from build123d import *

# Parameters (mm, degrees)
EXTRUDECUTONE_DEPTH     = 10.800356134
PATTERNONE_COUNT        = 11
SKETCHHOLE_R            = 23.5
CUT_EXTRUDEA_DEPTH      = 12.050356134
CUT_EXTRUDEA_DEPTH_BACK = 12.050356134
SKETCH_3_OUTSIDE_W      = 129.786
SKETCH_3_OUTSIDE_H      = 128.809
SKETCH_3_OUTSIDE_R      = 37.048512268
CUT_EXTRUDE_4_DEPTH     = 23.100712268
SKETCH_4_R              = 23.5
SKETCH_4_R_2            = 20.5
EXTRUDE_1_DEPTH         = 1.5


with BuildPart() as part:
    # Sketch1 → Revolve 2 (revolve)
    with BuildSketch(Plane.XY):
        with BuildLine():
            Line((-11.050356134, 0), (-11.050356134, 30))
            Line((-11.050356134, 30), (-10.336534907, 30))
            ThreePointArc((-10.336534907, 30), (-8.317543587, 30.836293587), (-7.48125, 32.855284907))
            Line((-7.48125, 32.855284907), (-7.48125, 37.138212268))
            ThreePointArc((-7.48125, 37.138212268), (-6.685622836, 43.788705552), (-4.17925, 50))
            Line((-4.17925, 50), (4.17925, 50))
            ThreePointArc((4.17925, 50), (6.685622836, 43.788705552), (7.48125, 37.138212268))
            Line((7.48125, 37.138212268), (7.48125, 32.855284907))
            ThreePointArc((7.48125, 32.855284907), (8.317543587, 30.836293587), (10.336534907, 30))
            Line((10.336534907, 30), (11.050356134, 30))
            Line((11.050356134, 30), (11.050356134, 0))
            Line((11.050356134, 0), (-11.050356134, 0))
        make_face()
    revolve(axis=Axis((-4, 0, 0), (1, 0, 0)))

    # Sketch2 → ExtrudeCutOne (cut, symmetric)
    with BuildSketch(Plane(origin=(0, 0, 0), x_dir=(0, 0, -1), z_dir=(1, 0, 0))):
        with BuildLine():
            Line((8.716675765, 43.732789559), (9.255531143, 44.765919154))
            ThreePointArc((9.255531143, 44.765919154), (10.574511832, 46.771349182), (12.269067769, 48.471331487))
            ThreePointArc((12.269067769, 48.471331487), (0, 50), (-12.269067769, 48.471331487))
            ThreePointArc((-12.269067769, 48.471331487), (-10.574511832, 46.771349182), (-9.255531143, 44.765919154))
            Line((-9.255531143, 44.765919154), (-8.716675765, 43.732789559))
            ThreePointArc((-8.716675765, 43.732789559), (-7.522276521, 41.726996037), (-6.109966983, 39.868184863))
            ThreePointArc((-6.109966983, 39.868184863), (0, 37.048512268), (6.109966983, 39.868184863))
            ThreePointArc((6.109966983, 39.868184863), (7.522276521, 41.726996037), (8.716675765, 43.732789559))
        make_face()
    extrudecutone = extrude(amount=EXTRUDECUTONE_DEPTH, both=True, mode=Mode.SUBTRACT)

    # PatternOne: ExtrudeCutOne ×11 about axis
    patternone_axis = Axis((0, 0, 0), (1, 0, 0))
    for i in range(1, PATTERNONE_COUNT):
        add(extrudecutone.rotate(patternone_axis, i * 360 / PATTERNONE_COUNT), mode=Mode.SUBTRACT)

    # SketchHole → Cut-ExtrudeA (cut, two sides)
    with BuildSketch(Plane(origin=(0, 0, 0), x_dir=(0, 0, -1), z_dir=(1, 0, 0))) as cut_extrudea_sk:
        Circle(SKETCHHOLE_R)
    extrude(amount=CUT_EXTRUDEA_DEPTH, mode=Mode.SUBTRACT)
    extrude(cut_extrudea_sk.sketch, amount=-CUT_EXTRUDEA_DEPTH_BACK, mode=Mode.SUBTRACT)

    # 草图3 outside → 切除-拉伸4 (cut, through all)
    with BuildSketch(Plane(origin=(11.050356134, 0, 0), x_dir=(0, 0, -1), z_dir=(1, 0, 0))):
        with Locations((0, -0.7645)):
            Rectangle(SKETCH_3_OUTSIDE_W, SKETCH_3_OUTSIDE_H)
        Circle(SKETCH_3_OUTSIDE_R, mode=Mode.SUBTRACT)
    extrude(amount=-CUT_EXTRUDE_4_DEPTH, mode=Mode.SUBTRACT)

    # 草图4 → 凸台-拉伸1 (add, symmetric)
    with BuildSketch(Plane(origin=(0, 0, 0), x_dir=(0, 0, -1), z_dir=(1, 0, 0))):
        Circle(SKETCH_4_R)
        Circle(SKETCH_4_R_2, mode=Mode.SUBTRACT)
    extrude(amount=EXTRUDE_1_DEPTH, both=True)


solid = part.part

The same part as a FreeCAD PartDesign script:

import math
import FreeCAD as App
import Part
import Sketcher
from FreeCAD import Vector

doc = App.newDocument("Part")
params = doc.addObject("Spreadsheet::Sheet", "Params")
for row, (alias, value) in enumerate([
    ("sketch1_radius", "25.4 mm"),
    ("sketch1_height", "30 mm"),
    ("revolution_angle", "360 deg"),
    ("sketch2_radius", "50 mm"),
    ("pocket1_length", "21.600712 mm"),
    ("sketch3_diameter", "47 mm"),
    ("sketch5_diameter", "47 mm"),
    ("sketch5_diameter2", "41 mm"),
    ("pad1_length", "3 mm"),
], start=1):
    params.set(f"A{row}", alias)
    params.set(f"B{row}", "=" + value)
    params.setAlias(f"B{row}", alias)

body = doc.addObject("PartDesign::Body", "Body")

sketch1 = body.newObject("Sketcher::SketchObject", "Sketch")
sketch1.AttachmentSupport = (doc.getObject("XY_Plane"), [""])
sketch1.MapMode = "FlatFace"
sketch1.addGeometry(Part.LineSegment(Vector(-11.1, 30, 0), Vector(-11.1, 0, 0)), False)
sketch1.addGeometry(Part.LineSegment(Vector(-11.1, 0, 0), Vector(11.1, 0, 0)), False)
sketch1.addGeometry(Part.LineSegment(Vector(11.1, 0, 0), Vector(11.1, 30, 0)), False)
sketch1.addGeometry(Part.LineSegment(Vector(11.1, 30, 0), Vector(10.3, 30, 0)), False)
sketch1.addGeometry(Part.ArcOfCircle(Part.Circle(Vector(10.3, 32.9, 0), Vector(0, 0, 1), 2.9), math.radians(180), math.radians(270)), False)
sketch1.addGeometry(Part.LineSegment(Vector(7.5, 32.9, 0), Vector(7.5, 37.1, 0)), False)
sketch1.addGeometry(Part.ArcOfCircle(Part.Circle(Vector(-17.9, 37.5, 0), Vector(0, 0, 1), 25.4), math.radians(-1), math.radians(30)), False)
sketch1.addGeometry(Part.LineSegment(Vector(4.2, 50, 0), Vector(-4.2, 50, 0)), False)
sketch1.addGeometry(Part.ArcOfCircle(Part.Circle(Vector(17.9, 37.5, 0), Vector(0, 0, 1), 25.4), math.radians(150), math.radians(181)), False)
sketch1.addGeometry(Part.LineSegment(Vector(-7.5, 37.1, 0), Vector(-7.5, 32.9, 0)), False)
sketch1.addGeometry(Part.ArcOfCircle(Part.Circle(Vector(-10.3, 32.9, 0), Vector(0, 0, 1), 2.9), math.radians(-90), math.radians(0)), False)
sketch1.addGeometry(Part.LineSegment(Vector(-10.3, 30, 0), Vector(-11.1, 30, 0)), False)
sketch1.addConstraint(Sketcher.Constraint("Coincident", 0, 2, 1, 1))
sketch1.addConstraint(Sketcher.Constraint("Coincident", 1, 2, 2, 1))
sketch1.addConstraint(Sketcher.Constraint("Coincident", 2, 2, 3, 1))
sketch1.addConstraint(Sketcher.Constraint("Tangent", 3, 2, 4, 2))
sketch1.addConstraint(Sketcher.Constraint("Tangent", 4, 1, 5, 1))
sketch1.addConstraint(Sketcher.Constraint("Coincident", 5, 2, 6, 1))
sketch1.addConstraint(Sketcher.Constraint("Coincident", 6, 2, 7, 1))
sketch1.addConstraint(Sketcher.Constraint("Coincident", 7, 2, 8, 1))
sketch1.addConstraint(Sketcher.Constraint("Coincident", 8, 2, 9, 1))
sketch1.addConstraint(Sketcher.Constraint("Tangent", 9, 2, 10, 2))
sketch1.addConstraint(Sketcher.Constraint("Tangent", 10, 1, 11, 1))
sketch1.addConstraint(Sketcher.Constraint("Coincident", 11, 2, 0, 1))
sketch1.addConstraint(Sketcher.Constraint("Vertical", 0))
sketch1.addConstraint(Sketcher.Constraint("Horizontal", 1))
sketch1.addConstraint(Sketcher.Constraint("Vertical", 2))
sketch1.addConstraint(Sketcher.Constraint("Horizontal", 3))
sketch1.addConstraint(Sketcher.Constraint("Vertical", 5))
sketch1.addConstraint(Sketcher.Constraint("Horizontal", 7))
sketch1.addConstraint(Sketcher.Constraint("Vertical", 9))
sketch1.addConstraint(Sketcher.Constraint("Horizontal", 11))
sketch1.addConstraint(Sketcher.Constraint("Equal", 6, 8))
sketch1.addConstraint(Sketcher.Constraint("Equal", 4, 10))
sketch1.addConstraint(Sketcher.Constraint("Symmetric", 0, 2, 1, 2, -1, 1))
sketch1.addConstraint(Sketcher.Constraint("Symmetric", 6, 3, 8, 3, -2))
sketch1.addConstraint(Sketcher.Constraint("Symmetric", 4, 3, 10, 3, -2))
sketch1.addConstraint(Sketcher.Constraint("Radius", 6, 25.4))
sketch1.addConstraint(Sketcher.Constraint("DistanceY", 0, 2, 0, 1, 30.0))
sketch1.addConstraint(Sketcher.Constraint("DistanceY", -1, 1, 6, 2, 50.0))
sketch1.addConstraint(Sketcher.Constraint("DistanceX", 7, 2, 7, 1, 8.3585))
sketch1.addConstraint(Sketcher.Constraint("Radius", 4, 2.855285))
sketch1.addConstraint(Sketcher.Constraint("DistanceX", 6, 2, 5, 2, 3.302))
sketch1.addConstraint(Sketcher.Constraint("DistanceX", 3, 2, 3, 1, 0.713821))
sketch1.addConstraint(Sketcher.Constraint("DistanceX", 4, 1, 8, 3, 10.435299))
sketch1.setExpression("Constraints[25]", "Params.sketch1_radius")
sketch1.setExpression("Constraints[26]", "Params.sketch1_height")
revolution = body.newObject("PartDesign::Revolution", "Revolution")
revolution.Profile = sketch1
revolution.ReferenceAxis = (sketch1, ["H_Axis"])
revolution.setExpression("Angle", "Params.revolution_angle")

sketch2 = body.newObject("Sketcher::SketchObject", "Sketch001")
sketch2.AttachmentSupport = (doc.getObject("YZ_Plane"), [""])
sketch2.MapMode = "FlatFace"
sketch2.addGeometry(Part.LineSegment(Vector(43.7, -8.7, 0), Vector(44.8, -9.3, 0)), False)
sketch2.addGeometry(Part.ArcOfCircle(Part.Circle(Vector(39.3, -19.8, 0), Vector(0, 0, 1), 11.9), math.radians(39), math.radians(62)), False)
sketch2.addGeometry(Part.ArcOfCircle(Part.Circle(Vector(0, 0, 0), Vector(0, 0, 1), 50), math.radians(-14), math.radians(14)), False)
sketch2.addGeometry(Part.ArcOfCircle(Part.Circle(Vector(39.3, 19.8, 0), Vector(0, 0, 1), 11.9), math.radians(-62), math.radians(-39)), False)
sketch2.addGeometry(Part.LineSegment(Vector(44.8, 9.3, 0), Vector(43.7, 8.7, 0)), False)
sketch2.addGeometry(Part.ArcOfCircle(Part.Circle(Vector(53.3, -9.7, 0), Vector(0, 0, 1), 20.7), math.radians(117.55), math.radians(130.45)), False)
sketch2.addGeometry(Part.ArcOfCircle(Part.Circle(Vector(45.1, 0, 0), Vector(0, 0, 1), 8), math.radians(130), math.radians(230)), False)
sketch2.addGeometry(Part.ArcOfCircle(Part.Circle(Vector(53.3, 9.7, 0), Vector(0, 0, 1), 20.7), math.radians(-130.45), math.radians(-117.55)), False)
sketch2.addConstraint(Sketcher.Constraint("Tangent", 0, 2, 1, 2))
sketch2.addConstraint(Sketcher.Constraint("Coincident", 1, 1, 2, 1))
sketch2.addConstraint(Sketcher.Constraint("Coincident", 2, 2, 3, 2))
sketch2.addConstraint(Sketcher.Constraint("Tangent", 3, 1, 4, 1))
sketch2.addConstraint(Sketcher.Constraint("Tangent", 4, 2, 5, 1))
sketch2.addConstraint(Sketcher.Constraint("Tangent", 5, 2, 6, 1))
sketch2.addConstraint(Sketcher.Constraint("Tangent", 6, 2, 7, 1))
sketch2.addConstraint(Sketcher.Constraint("Tangent", 7, 2, 0, 1))
sketch2.addConstraint(Sketcher.Constraint("Coincident", 2, 3, -1, 1))
sketch2.addConstraint(Sketcher.Constraint("Equal", 1, 3))
sketch2.addConstraint(Sketcher.Constraint("Equal", 5, 7))
sketch2.addConstraint(Sketcher.Constraint("Symmetric", 1, 3, 3, 3, -1))
sketch2.addConstraint(Sketcher.Constraint("Symmetric", 5, 3, 7, 3, -1))
sketch2.addConstraint(Sketcher.Constraint("Radius", 2, 50.0))
sketch2.addConstraint(Sketcher.Constraint("Radius", 5, 20.7337))
sketch2.addConstraint(Sketcher.Constraint("Radius", 6, 8.0297))
sketch2.addConstraint(Sketcher.Constraint("Radius", 1, 11.901326))
sketch2.addConstraint(Sketcher.Constraint("DistanceY", 0, 2, 2, 2, 21.524599))
sketch2.addConstraint(Sketcher.Constraint("DistanceY", 5, 2, 2, 2, 6.159101))
sketch2.addConstraint(Sketcher.Constraint("DistanceY", 5, 3, -1, 1, 9.66674))
sketch2.addConstraint(Sketcher.Constraint("DistanceX", -1, 1, 0, 2, 44.765919))
sketch2.setExpression("Constraints[13]", "Params.sketch2_radius")
pocket1 = body.newObject("PartDesign::Pocket", "Pocket")
pocket1.Profile = sketch2
pocket1.setExpression("Length", "Params.pocket1_length")
pocket1.Midplane = True
doc.recompute()

polarpattern = body.newObject("PartDesign::PolarPattern", "PolarPattern")
polarpattern.Originals = [pocket1]
polarpattern.Axis = (doc.getObject("X_Axis"), [""])
polarpattern.Angle = 360
polarpattern.Occurrences = 11
body.Tip = polarpattern

sketch3 = body.newObject("Sketcher::SketchObject", "Sketch002")
sketch3.AttachmentSupport = (doc.getObject("YZ_Plane"), [""])
sketch3.MapMode = "FlatFace"
sketch3.addGeometry(Part.Circle(Vector(0, 0, 0), Vector(0, 0, 1), 24), False)
sketch3.addConstraint(Sketcher.Constraint("Coincident", 0, 3, -1, 1))
sketch3.addConstraint(Sketcher.Constraint("Diameter", 0, 47.0))
sketch3.setExpression("Constraints[1]", "Params.sketch3_diameter")
pocket2 = body.newObject("PartDesign::Pocket", "Pocket001")
pocket2.Profile = sketch3
pocket2.Type = "ThroughAll"
pocket2.Midplane = True

sketch4 = body.newObject("Sketcher::SketchObject", "Sketch003")
sketch4.AttachmentSupport = (doc.getObject("YZ_Plane"), [""])
sketch4.MapMode = "FlatFace"
sketch4.AttachmentOffset = App.Placement(Vector(0, 0, 11.050356), App.Rotation())
sketch4.addGeometry(Part.LineSegment(Vector(64, 65, 0), Vector(-65, 65, 0)), False)
sketch4.addGeometry(Part.LineSegment(Vector(-65, 65, 0), Vector(-65, -65, 0)), False)
sketch4.addGeometry(Part.LineSegment(Vector(-65, -65, 0), Vector(64, -65, 0)), False)
sketch4.addGeometry(Part.LineSegment(Vector(64, -65, 0), Vector(64, 65, 0)), False)
sketch4.addGeometry(Part.Circle(Vector(0, 0, 0), Vector(0, 0, 1), 37), False)
sketch4.addConstraint(Sketcher.Constraint("Coincident", 0, 2, 1, 1))
sketch4.addConstraint(Sketcher.Constraint("Coincident", 1, 2, 2, 1))
sketch4.addConstraint(Sketcher.Constraint("Coincident", 2, 2, 3, 1))
sketch4.addConstraint(Sketcher.Constraint("Coincident", 3, 2, 0, 1))
sketch4.addConstraint(Sketcher.Constraint("Horizontal", 0))
sketch4.addConstraint(Sketcher.Constraint("Vertical", 1))
sketch4.addConstraint(Sketcher.Constraint("Horizontal", 2))
sketch4.addConstraint(Sketcher.Constraint("Vertical", 3))
sketch4.addConstraint(Sketcher.Constraint("Coincident", 4, 3, -1, 1))
sketch4.addConstraint(Sketcher.Constraint("DistanceX", 0, 2, 0, 1, 128.809))
sketch4.addConstraint(Sketcher.Constraint("DistanceY", 1, 2, 1, 1, 129.786))
sketch4.addConstraint(Sketcher.Constraint("DistanceX", -1, 1, 2, 2, 63.64))
sketch4.addConstraint(Sketcher.Constraint("Diameter", 4, 74.097025))
sketch4.addConstraint(Sketcher.Constraint("DistanceY", -1, 1, 0, 2, 64.893))
pocket3 = body.newObject("PartDesign::Pocket", "Pocket002")
pocket3.Profile = sketch4
pocket3.Type = "ThroughAll"

sketch5 = body.newObject("Sketcher::SketchObject", "Sketch004")
sketch5.AttachmentSupport = (doc.getObject("YZ_Plane"), [""])
sketch5.MapMode = "FlatFace"
sketch5.addGeometry(Part.Circle(Vector(0, 0, 0), Vector(0, 0, 1), 24), False)
sketch5.addGeometry(Part.Circle(Vector(0, 0, 0), Vector(0, 0, 1), 20), False)
sketch5.addConstraint(Sketcher.Constraint("Coincident", 0, 3, -1, 1))
sketch5.addConstraint(Sketcher.Constraint("Coincident", 1, 3, -1, 1))
sketch5.addConstraint(Sketcher.Constraint("Diameter", 0, 47.0))
sketch5.addConstraint(Sketcher.Constraint("Diameter", 1, 41.0))
sketch5.setExpression("Constraints[2]", "Params.sketch5_diameter")
sketch5.setExpression("Constraints[3]", "Params.sketch5_diameter2")
pad1 = body.newObject("PartDesign::Pad", "Pad")
pad1.Profile = sketch5
pad1.setExpression("Length", "Params.pad1_length")
pad1.Midplane = True

doc.recompute()
